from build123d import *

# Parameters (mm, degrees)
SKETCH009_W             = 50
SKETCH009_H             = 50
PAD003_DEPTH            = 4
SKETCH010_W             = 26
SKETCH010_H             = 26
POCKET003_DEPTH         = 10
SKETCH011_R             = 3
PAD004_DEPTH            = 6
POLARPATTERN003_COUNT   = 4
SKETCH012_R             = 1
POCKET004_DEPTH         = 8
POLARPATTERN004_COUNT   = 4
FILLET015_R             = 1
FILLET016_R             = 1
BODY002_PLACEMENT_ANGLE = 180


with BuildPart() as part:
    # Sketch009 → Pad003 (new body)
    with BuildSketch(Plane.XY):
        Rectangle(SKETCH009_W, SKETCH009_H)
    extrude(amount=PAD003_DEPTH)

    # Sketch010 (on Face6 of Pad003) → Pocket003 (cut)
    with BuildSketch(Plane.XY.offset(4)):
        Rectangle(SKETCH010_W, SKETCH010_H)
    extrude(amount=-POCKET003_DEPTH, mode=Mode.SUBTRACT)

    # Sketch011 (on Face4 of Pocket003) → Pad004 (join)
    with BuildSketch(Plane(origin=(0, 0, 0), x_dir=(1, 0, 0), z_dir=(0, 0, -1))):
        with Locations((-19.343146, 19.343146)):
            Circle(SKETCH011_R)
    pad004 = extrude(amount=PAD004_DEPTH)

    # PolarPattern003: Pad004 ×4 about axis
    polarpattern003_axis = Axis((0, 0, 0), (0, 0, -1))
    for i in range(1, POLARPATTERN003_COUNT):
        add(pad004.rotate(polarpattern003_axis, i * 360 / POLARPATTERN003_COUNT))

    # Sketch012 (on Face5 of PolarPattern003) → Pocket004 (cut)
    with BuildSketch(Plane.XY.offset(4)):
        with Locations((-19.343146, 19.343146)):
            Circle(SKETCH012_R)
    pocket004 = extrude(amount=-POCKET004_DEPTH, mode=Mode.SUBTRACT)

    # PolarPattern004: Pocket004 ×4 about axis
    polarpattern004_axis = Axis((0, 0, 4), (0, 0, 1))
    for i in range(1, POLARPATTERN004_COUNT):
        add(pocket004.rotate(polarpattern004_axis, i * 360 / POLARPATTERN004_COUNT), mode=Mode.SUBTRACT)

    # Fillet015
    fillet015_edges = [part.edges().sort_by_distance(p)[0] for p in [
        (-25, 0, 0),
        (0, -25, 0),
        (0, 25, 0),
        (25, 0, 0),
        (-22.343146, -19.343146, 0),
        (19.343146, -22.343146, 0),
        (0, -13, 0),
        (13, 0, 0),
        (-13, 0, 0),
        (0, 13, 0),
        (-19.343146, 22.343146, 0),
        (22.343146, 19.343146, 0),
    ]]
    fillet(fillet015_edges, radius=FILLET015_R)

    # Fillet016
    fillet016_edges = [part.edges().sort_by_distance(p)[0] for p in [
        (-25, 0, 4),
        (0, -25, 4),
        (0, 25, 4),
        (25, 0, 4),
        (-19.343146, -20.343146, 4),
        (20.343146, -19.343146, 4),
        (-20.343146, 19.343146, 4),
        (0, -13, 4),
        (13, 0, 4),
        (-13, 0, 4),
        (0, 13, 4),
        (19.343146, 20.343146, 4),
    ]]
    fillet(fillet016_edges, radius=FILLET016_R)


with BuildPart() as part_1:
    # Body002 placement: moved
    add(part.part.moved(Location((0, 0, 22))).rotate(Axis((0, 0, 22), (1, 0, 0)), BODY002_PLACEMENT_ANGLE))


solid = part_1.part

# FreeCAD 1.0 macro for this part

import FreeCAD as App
import Part
import Sketcher

V = App.Vector


def edges_at(feature, points):
    """Names of the edges that pass closest to the given points."""
    edges = feature.Shape.Edges
    near = lambda p: min(range(len(edges)), key=lambda i: edges[i].distToShape(Part.Vertex(*p))[0])
    return sorted({f"Edge{near(p) + 1}" for p in points})

doc = App.newDocument("Part")
params = doc.addObject("Spreadsheet::Sheet", "Params")
for row, (alias, value) in enumerate([
    ("sketch1_width", "50 mm"),
    ("pad1_length", "4 mm"),
    ("sketch2_width", "26 mm"),
    ("pocket1_length", "10 mm"),
    ("sketch3_diameter", "6 mm"),
    ("pad2_length", "6 mm"),
    ("sketch4_diameter", "2 mm"),
    ("pocket2_length", "8 mm"),
    ("fillet_radius", "1 mm"),
    ("fillet2_radius", "1 mm"),
], start=1):
    params.set(f"A{row}", alias)
    params.set(f"B{row}", "=" + value)
    params.setAlias(f"B{row}", alias)

body = doc.addObject("PartDesign::Body", "Body")

# Sketch on XY plane
sketch1 = body.newObject("Sketcher::SketchObject", "Sketch")
sketch1.AttachmentSupport = (doc.getObject("XY_Plane"), [""])
sketch1.MapMode = "FlatFace"
sketch1.addGeometry([
    Part.LineSegment(V(-25, 25, 0), V(-25, -25, 0)),
    Part.LineSegment(V(-25, -25, 0), V(25, -25, 0)),
    Part.LineSegment(V(25, -25, 0), V(25, 25, 0)),
    Part.LineSegment(V(25, 25, 0), V(-25, 25, 0)),
], False)
sketch1.addConstraint([
    Sketcher.Constraint("Coincident", 0, 2, 1, 1),
    Sketcher.Constraint("Coincident", 1, 2, 2, 1),
    Sketcher.Constraint("Coincident", 2, 2, 3, 1),
    Sketcher.Constraint("Coincident", 3, 2, 0, 1),
    Sketcher.Constraint("Vertical", 0),
    Sketcher.Constraint("Horizontal", 1),
    Sketcher.Constraint("Vertical", 2),
    Sketcher.Constraint("Horizontal", 3),
    Sketcher.Constraint("Symmetric", 0, 2, 2, 2, -1, 1),
    Sketcher.Constraint("Equal", 3, 0),
    Sketcher.Constraint("DistanceX", 1, 1, 1, 2, 50.0),
])
sketch1.setExpression("Constraints[10]", "Params.sketch1_width")
pad1 = body.newObject("PartDesign::Pad", "Pad")
pad1.Profile = sketch1
pad1.setExpression("Length", "Params.pad1_length")

# Sketch on XY plane
sketch2 = body.newObject("Sketcher::SketchObject", "Sketch001")
sketch2.AttachmentSupport = (doc.getObject("XY_Plane"), [""])
sketch2.MapMode = "FlatFace"
sketch2.AttachmentOffset = App.Placement(V(0, 0, 4), App.Rotation())
sketch2.addGeometry([
    Part.LineSegment(V(-13, 13, 0), V(-13, -13, 0)),
    Part.LineSegment(V(-13, -13, 0), V(13, -13, 0)),
    Part.LineSegment(V(13, -13, 0), V(13, 13, 0)),
    Part.LineSegment(V(13, 13, 0), V(-13, 13, 0)),
], False)
sketch2.addConstraint([
    Sketcher.Constraint("Coincident", 0, 2, 1, 1),
    Sketcher.Constraint("Coincident", 1, 2, 2, 1),
    Sketcher.Constraint("Coincident", 2, 2, 3, 1),
    Sketcher.Constraint("Coincident", 3, 2, 0, 1),
    Sketcher.Constraint("Vertical", 0),
    Sketcher.Constraint("Horizontal", 1),
    Sketcher.Constraint("Vertical", 2),
    Sketcher.Constraint("Horizontal", 3),
    Sketcher.Constraint("Symmetric", 0, 2, 2, 2, -1, 1),
    Sketcher.Constraint("Equal", 3, 0),
    Sketcher.Constraint("DistanceX", 1, 1, 1, 2, 26.0),
])
sketch2.setExpression("Constraints[10]", "Params.sketch2_width")
pocket1 = body.newObject("PartDesign::Pocket", "Pocket")
pocket1.Profile = sketch2
pocket1.setExpression("Length", "Params.pocket1_length")

# Sketch on XY plane
sketch3 = body.newObject("Sketcher::SketchObject", "Sketch002")
sketch3.AttachmentSupport = (doc.getObject("XY_Plane"), [""])
sketch3.MapMode = "FlatFace"
sketch3.addGeometry(Part.Circle(V(-19.3, -19.3, 0), V(0, 0, 1), 3), False)
sketch3.addConstraint([
    Sketcher.Constraint("Diameter", 0, 6.0),
    Sketcher.Constraint("DistanceX", 0, 3, -1, 1, 19.343146),
    Sketcher.Constraint("DistanceY", 0, 3, -1, 1, 19.343146),
])
sketch3.setExpression("Constraints[0]", "Params.sketch3_diameter")
pad2 = body.newObject("PartDesign::Pad", "Pad001")
pad2.Profile = sketch3
pad2.setExpression("Length", "Params.pad2_length")
pad2.Reversed = True
doc.recompute()

polarpattern = body.newObject("PartDesign::PolarPattern", "PolarPattern")
polarpattern.Originals = [pad2]
polarpattern.Axis = (doc.getObject("Z_Axis"), [""])
polarpattern.Angle = 360
polarpattern.Occurrences = 4
body.Tip = polarpattern

# Sketch on XY plane
sketch4 = body.newObject("Sketcher::SketchObject", "Sketch003")
sketch4.AttachmentSupport = (doc.getObject("XY_Plane"), [""])
sketch4.MapMode = "FlatFace"
sketch4.AttachmentOffset = App.Placement(V(0, 0, 4), App.Rotation())
sketch4.addGeometry(Part.Circle(V(-19.3, 19.3, 0), V(0, 0, 1), 1), False)
sketch4.addConstraint([
    Sketcher.Constraint("Diameter", 0, 2.0),
    Sketcher.Constraint("DistanceX", 0, 3, -1, 1, 19.343146),
    Sketcher.Constraint("DistanceY", -1, 1, 0, 3, 19.343146),
])
sketch4.setExpression("Constraints[0]", "Params.sketch4_diameter")
pocket2 = body.newObject("PartDesign::Pocket", "Pocket001")
pocket2.Profile = sketch4
pocket2.setExpression("Length", "Params.pocket2_length")
doc.recompute()

polarpattern2 = body.newObject("PartDesign::PolarPattern", "PolarPattern001")
polarpattern2.Originals = [pocket2]
polarpattern2.Axis = (doc.getObject("Z_Axis"), [""])
polarpattern2.Angle = 360
polarpattern2.Occurrences = 4
body.Tip = polarpattern2
doc.recompute()

fillet = body.newObject("PartDesign::Fillet", "Fillet")
fillet.Base = (polarpattern2, edges_at(polarpattern2, [
    (-25, 0, 0),
    (0, -25, 0),
    (0, 25, 0),
    (25, 0, 0),
    (-22.343, -19.343, 0),
    (19.343, -22.343, 0),
    (0, -13, 0),
    (13, 0, 0),
    (-13, 0, 0),
    (0, 13, 0),
    (-19.343, 22.343, 0),
    (22.343, 19.343, 0),
]))
fillet.setExpression("Radius", "Params.fillet_radius")
doc.recompute()

fillet2 = body.newObject("PartDesign::Fillet", "Fillet001")
fillet2.Base = (fillet, edges_at(fillet, [
    (-25, 0, 4),
    (0, -25, 4),
    (0, 25, 4),
    (25, 0, 4),
    (-19.343, -20.343, 4),
    (20.343, -19.343, 4),
    (-20.343, 19.343, 4),
    (0, -13, 4),
    (13, 0, 4),
    (-13, 0, 4),
    (0, 13, 4),
    (19.343, 20.343, 4),
]))
fillet2.setExpression("Radius", "Params.fillet2_radius")
body2 = doc.addObject("PartDesign::Body", "Body001")
doc.recompute()

body.Placement = App.Placement(V(0, 0, 22), App.Rotation(V(1, 0, 0), 180))
boolean = body2.newObject("PartDesign::Boolean", "Boolean")
boolean.Type = "Fuse"
boolean.addObjects([body])

doc.recompute()
